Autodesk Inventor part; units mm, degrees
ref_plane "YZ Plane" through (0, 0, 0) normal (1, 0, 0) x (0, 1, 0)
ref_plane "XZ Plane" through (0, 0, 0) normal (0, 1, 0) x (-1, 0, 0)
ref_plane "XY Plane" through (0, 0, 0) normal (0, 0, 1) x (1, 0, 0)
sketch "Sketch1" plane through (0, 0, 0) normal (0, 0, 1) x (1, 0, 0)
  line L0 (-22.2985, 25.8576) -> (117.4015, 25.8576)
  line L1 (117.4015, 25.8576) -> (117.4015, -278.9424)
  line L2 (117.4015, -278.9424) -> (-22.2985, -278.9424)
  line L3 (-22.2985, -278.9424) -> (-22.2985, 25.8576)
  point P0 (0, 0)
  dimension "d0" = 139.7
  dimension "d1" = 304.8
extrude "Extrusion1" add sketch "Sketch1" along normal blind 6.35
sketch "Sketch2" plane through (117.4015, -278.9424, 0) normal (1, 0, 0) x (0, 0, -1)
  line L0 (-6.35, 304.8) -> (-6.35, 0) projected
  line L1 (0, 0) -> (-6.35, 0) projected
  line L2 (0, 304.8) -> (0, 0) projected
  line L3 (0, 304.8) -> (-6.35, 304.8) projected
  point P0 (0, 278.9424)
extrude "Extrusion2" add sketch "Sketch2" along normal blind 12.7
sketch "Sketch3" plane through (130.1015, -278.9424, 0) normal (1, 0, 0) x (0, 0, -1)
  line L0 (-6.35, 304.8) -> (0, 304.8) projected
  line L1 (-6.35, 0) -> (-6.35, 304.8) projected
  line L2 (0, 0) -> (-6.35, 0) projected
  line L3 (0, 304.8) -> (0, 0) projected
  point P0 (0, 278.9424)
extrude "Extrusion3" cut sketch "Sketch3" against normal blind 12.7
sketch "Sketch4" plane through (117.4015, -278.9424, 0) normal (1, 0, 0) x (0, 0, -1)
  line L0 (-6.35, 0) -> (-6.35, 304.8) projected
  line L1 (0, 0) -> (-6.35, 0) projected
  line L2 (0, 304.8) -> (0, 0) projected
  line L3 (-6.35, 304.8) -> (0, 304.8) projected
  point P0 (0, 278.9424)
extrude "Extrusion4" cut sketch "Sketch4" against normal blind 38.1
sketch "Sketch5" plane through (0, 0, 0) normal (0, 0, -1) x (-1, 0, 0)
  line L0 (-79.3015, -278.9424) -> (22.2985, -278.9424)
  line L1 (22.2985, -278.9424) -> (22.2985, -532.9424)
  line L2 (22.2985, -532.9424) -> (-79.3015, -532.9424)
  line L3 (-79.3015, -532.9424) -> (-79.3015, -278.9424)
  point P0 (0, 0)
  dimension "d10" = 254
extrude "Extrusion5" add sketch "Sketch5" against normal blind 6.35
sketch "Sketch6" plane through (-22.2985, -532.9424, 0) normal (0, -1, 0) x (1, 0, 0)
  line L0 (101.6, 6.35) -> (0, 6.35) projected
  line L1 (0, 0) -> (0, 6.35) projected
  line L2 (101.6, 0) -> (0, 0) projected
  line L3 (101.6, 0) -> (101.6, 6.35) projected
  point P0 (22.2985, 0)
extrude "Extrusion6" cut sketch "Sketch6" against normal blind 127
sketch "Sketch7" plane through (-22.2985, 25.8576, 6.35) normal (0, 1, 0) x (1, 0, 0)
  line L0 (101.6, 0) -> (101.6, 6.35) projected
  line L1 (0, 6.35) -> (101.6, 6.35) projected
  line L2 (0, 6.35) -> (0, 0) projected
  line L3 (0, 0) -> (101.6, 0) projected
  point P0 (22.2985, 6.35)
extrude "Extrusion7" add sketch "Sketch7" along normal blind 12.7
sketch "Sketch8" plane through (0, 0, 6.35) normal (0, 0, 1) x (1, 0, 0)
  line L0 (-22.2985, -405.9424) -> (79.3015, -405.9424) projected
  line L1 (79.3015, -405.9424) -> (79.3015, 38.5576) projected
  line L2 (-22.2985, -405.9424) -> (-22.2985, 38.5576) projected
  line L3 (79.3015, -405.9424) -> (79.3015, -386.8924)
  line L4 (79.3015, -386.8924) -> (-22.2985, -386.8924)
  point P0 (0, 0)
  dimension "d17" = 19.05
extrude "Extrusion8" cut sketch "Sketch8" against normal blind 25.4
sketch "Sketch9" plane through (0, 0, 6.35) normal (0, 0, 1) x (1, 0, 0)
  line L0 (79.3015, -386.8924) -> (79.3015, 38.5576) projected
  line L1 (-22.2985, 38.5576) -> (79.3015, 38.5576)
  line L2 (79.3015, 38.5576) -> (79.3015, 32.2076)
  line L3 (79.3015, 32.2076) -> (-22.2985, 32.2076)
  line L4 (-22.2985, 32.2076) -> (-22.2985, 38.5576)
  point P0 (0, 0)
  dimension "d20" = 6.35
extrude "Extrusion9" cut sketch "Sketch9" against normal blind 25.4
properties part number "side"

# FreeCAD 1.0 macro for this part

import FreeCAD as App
import Part
import Sketcher
Q = App.Units.Quantity


def add_polygon(sketch, points):
    """Adds a closed chain of lines whose ends are joined by coincident constraints."""
    first, n = sketch.GeometryCount, len(points)
    for a, b in zip(points, points[1:] + points[:1]):
        sketch.addGeometry(Part.LineSegment(App.Vector(*a, 0), App.Vector(*b, 0)), False)
    for i in range(n):
        sketch.addConstraint(Sketcher.Constraint("Coincident", first + i, 2, first + (i + 1) % n, 1))

doc = App.newDocument("Part")
params = doc.addObject("Spreadsheet::Sheet", "Params")
for row, (alias, value) in enumerate([
    ("sketch1_height", "12 in"),
    ("sketch1_width", "5.5 in"),
    ("pad1_length", "0.25 in"),
    ("sketch2_width", "12 in"),
    ("sketch2_height", "0.25 in"),
    ("pad2_length", "0.5 in"),
    ("sketch3_width", "12 in"),
    ("sketch3_height", "0.25 in"),
    ("pocket1_length", "0.5 in"),
    ("sketch4_width", "12 in"),
    ("sketch4_height", "0.25 in"),
    ("pocket2_length", "1.5 in"),
    ("sketch5_height", "10 in"),
    ("sketch5_width", "4 in"),
    ("pad3_length", "0.25 in"),
    ("sketch6_width", "4 in"),
    ("sketch6_height", "0.25 in"),
    ("pocket3_length", "5 in"),
    ("sketch7_width", "4 in"),
    ("sketch7_height", "0.25 in"),
    ("pad4_length", "0.5 in"),
    ("sketch8_height", "0.75 in"),
    ("sketch8_width", "4 in"),
    ("pocket4_length", "1 in"),
    ("sketch9_height", "0.25 in"),
    ("sketch9_width", "4 in"),
    ("pocket5_length", "1 in"),
], start=1):
    params.set(f"A{row}", alias)
    params.set(f"B{row}", "=" + value)
    params.setAlias(f"B{row}", alias)

body = doc.addObject("PartDesign::Body", "Body")

sketch1 = body.newObject("Sketcher::SketchObject", "Sketch")
sketch1.AttachmentSupport = (doc.getObject("XY_Plane"), [""])
sketch1.MapMode = "FlatFace"
add_polygon(sketch1, [(117, 26), (-22, 26), (-22, -279), (117, -279)])
sketch1.addConstraint([
    Sketcher.Constraint("Horizontal", 0),
    Sketcher.Constraint("Vertical", 1),
    Sketcher.Constraint("Horizontal", 2),
    Sketcher.Constraint("Vertical", 3),
    Sketcher.Constraint("DistanceY", 1, 2, 1, 1, Q("12 in")),
    Sketcher.Constraint("DistanceX", 0, 2, 0, 1, Q("5.5 in")),
    Sketcher.Constraint("DistanceX", 0, 2, -1, 1, Q("0.8779 in")),
    Sketcher.Constraint("DistanceY", -1, 1, 0, 2, Q("25.8576 mm")),
])
sketch1.setExpression("Constraints[8]", "Params.sketch1_height")
sketch1.setExpression("Constraints[9]", "Params.sketch1_width")
pad1 = body.newObject("PartDesign::Pad", "Pad")
pad1.Profile = sketch1
pad1.setExpression("Length", "Params.pad1_length")

sketch2 = body.newObject("Sketcher::SketchObject", "Sketch001")
sketch2.AttachmentSupport = (doc.getObject("YZ_Plane"), [""])
sketch2.MapMode = "FlatFace"
sketch2.AttachmentOffset = App.Placement(App.Vector(0, 0, 4.6221063 * 25.4), App.Rotation())
add_polygon(sketch2, [(26, 0), (26, 6), (-279, 6), (-279, 0)])
sketch2.addConstraint([
    Sketcher.Constraint("Vertical", 0),
    Sketcher.Constraint("Horizontal", 1),
    Sketcher.Constraint("Vertical", 2),
    Sketcher.Constraint("Horizontal", 3),
    Sketcher.Constraint("PointOnObject", 2, 2, -1),
    Sketcher.Constraint("DistanceX", 1, 2, 1, 1, Q("12 in")),
    Sketcher.Constraint("DistanceY", 0, 1, 0, 2, Q("0.25 in")),
    Sketcher.Constraint("DistanceX", -1, 1, 0, 2, Q("25.8576 mm")),
])
sketch2.setExpression("Constraints[9]", "Params.sketch2_width")
sketch2.setExpression("Constraints[10]", "Params.sketch2_height")
pad2 = body.newObject("PartDesign::Pad", "Pad001")
pad2.Profile = sketch2
pad2.setExpression("Length", "Params.pad2_length")

sketch3 = body.newObject("Sketcher::SketchObject", "Sketch002")
sketch3.AttachmentSupport = (doc.getObject("YZ_Plane"), [""])
sketch3.MapMode = "FlatFace"
sketch3.AttachmentOffset = App.Placement(App.Vector(0, 0, 5.1221063 * 25.4), App.Rotation())
add_polygon(sketch3, [(26, 0), (26, 6), (-279, 6), (-279, 0)])
sketch3.addConstraint([
    Sketcher.Constraint("Vertical", 0),
    Sketcher.Constraint("Horizontal", 1),
    Sketcher.Constraint("Vertical", 2),
    Sketcher.Constraint("Horizontal", 3),
    Sketcher.Constraint("PointOnObject", 2, 2, -1),
    Sketcher.Constraint("DistanceX", 1, 2, 1, 1, Q("12 in")),
    Sketcher.Constraint("DistanceY", 0, 1, 0, 2, Q("0.25 in")),
    Sketcher.Constraint("DistanceX", -1, 1, 0, 2, Q("25.8576 mm")),
])
sketch3.setExpression("Constraints[9]", "Params.sketch3_width")
sketch3.setExpression("Constraints[10]", "Params.sketch3_height")
pocket1 = body.newObject("PartDesign::Pocket", "Pocket")
pocket1.Profile = sketch3
pocket1.setExpression("Length", "Params.pocket1_length")

sketch4 = body.newObject("Sketcher::SketchObject", "Sketch003")
sketch4.AttachmentSupport = (doc.getObject("YZ_Plane"), [""])
sketch4.MapMode = "FlatFace"
sketch4.AttachmentOffset = App.Placement(App.Vector(0, 0, 4.6221063 * 25.4), App.Rotation())
add_polygon(sketch4, [(26, 6), (-279, 6), (-279, 0), (26, 0)])
sketch4.addConstraint([
    Sketcher.Constraint("Horizontal", 0),
    Sketcher.Constraint("Vertical", 1),
    Sketcher.Constraint("Horizontal", 2),
    Sketcher.Constraint("Vertical", 3),
    Sketcher.Constraint("PointOnObject", 1, 2, -1),
    Sketcher.Constraint("DistanceX", 0, 2, 0, 1, Q("12 in")),
    Sketcher.Constraint("DistanceY", 1, 2, 1, 1, Q("0.25 in")),
    Sketcher.Constraint("DistanceX", 0, 2, -1, 1, Q("278.9424 mm")),
])
sketch4.setExpression("Constraints[9]", "Params.sketch4_width")
sketch4.setExpression("Constraints[10]", "Params.sketch4_height")
pocket2 = body.newObject("PartDesign::Pocket", "Pocket001")
pocket2.Profile = sketch4
pocket2.setExpression("Length", "Params.pocket2_length")

sketch5 = body.newObject("Sketcher::SketchObject", "Sketch004")
sketch5.AttachmentSupport = (doc.getObject("XY_Plane"), [""])
sketch5.MapMode = "FlatFace"
add_polygon(sketch5, [(-22, -279), (79, -279), (79, -533), (-22, -533)])
sketch5.addConstraint([
    Sketcher.Constraint("Horizontal", 0),
    Sketcher.Constraint("Vertical", 1),
    Sketcher.Constraint("Horizontal", 2),
    Sketcher.Constraint("Vertical", 3),
    Sketcher.Constraint("DistanceY", 1, 2, 1, 1, Q("10 in")),
    Sketcher.Constraint("DistanceX", 0, 1, 0, 2, Q("4 in")),
    Sketcher.Constraint("DistanceX", -1, 1, 0, 2, Q("3.1221 in")),
    Sketcher.Constraint("DistanceY", 0, 2, -1, 1, Q("278.9424 mm")),
])
sketch5.setExpression("Constraints[8]", "Params.sketch5_height")
sketch5.setExpression("Constraints[9]", "Params.sketch5_width")
pad3 = body.newObject("PartDesign::Pad", "Pad002")
pad3.Profile = sketch5
pad3.setExpression("Length", "Params.pad3_length")

sketch6 = body.newObject("Sketcher::SketchObject", "Sketch005")
sketch6.AttachmentSupport = (doc.getObject("XZ_Plane"), [""])
sketch6.MapMode = "FlatFace"
sketch6.AttachmentOffset = App.Placement(App.Vector(0, 0, 532.9424), App.Rotation())
add_polygon(sketch6, [(79, 0), (79, 6), (-22, 6), (-22, 0)])
sketch6.addConstraint([
    Sketcher.Constraint("Vertical", 0),
    Sketcher.Constraint("Horizontal", 1),
    Sketcher.Constraint("Vertical", 2),
    Sketcher.Constraint("Horizontal", 3),
    Sketcher.Constraint("PointOnObject", 2, 2, -1),
    Sketcher.Constraint("DistanceX", 1, 2, 1, 1, Q("4 in")),
    Sketcher.Constraint("DistanceY", 0, 1, 0, 2, Q("0.25 in")),
    Sketcher.Constraint("DistanceX", -1, 1, 0, 2, Q("3.1221 in")),
])
sketch6.setExpression("Constraints[9]", "Params.sketch6_width")
sketch6.setExpression("Constraints[10]", "Params.sketch6_height")
pocket3 = body.newObject("PartDesign::Pocket", "Pocket002")
pocket3.Profile = sketch6
pocket3.setExpression("Length", "Params.pocket3_length")

sketch7 = body.newObject("Sketcher::SketchObject", "Sketch006")
sketch7.AttachmentSupport = (doc.getObject("XZ_Plane"), [""])
sketch7.MapMode = "FlatFace"
sketch7.AttachmentOffset = App.Placement(App.Vector(0, 0, -25.8576), App.Rotation())
add_polygon(sketch7, [(-22, 6), (79, 6), (79, 0), (-22, 0)])
sketch7.addConstraint([
    Sketcher.Constraint("Horizontal", 0),
    Sketcher.Constraint("Vertical", 1),
    Sketcher.Constraint("Horizontal", 2),
    Sketcher.Constraint("Vertical", 3),
    Sketcher.Constraint("PointOnObject", 1, 2, -1),
    Sketcher.Constraint("DistanceX", 0, 1, 0, 2, Q("4 in")),
    Sketcher.Constraint("DistanceY", 1, 2, 1, 1, Q("0.25 in")),
    Sketcher.Constraint("DistanceX", -1, 1, 0, 2, Q("3.1221 in")),
])
sketch7.setExpression("Constraints[9]", "Params.sketch7_width")
sketch7.setExpression("Constraints[10]", "Params.sketch7_height")
pad4 = body.newObject("PartDesign::Pad", "Pad003")
pad4.Profile = sketch7
pad4.setExpression("Length", "Params.pad4_length")
pad4.Reversed = True

sketch8 = body.newObject("Sketcher::SketchObject", "Sketch007")
sketch8.AttachmentSupport = (doc.getObject("XY_Plane"), [""])
sketch8.MapMode = "FlatFace"
sketch8.AttachmentOffset = App.Placement(App.Vector(0, 0, 0.25 * 25.4), App.Rotation())
add_polygon(sketch8, [(-22, -387), (-22, -406), (79, -406), (79, -387)])
sketch8.addConstraint([
    Sketcher.Constraint("Vertical", 0),
    Sketcher.Constraint("Horizontal", 1),
    Sketcher.Constraint("Vertical", 2),
    Sketcher.Constraint("Horizontal", 3),
    Sketcher.Constraint("DistanceY", 0, 2, 0, 1, Q("0.75 in")),
    Sketcher.Constraint("DistanceX", 1, 1, 1, 2, Q("4 in")),
    Sketcher.Constraint("DistanceX", 0, 2, -1, 1, Q("0.8779 in")),
    Sketcher.Constraint("DistanceY", 0, 2, -1, 1, Q("405.9424 mm")),
])
sketch8.setExpression("Constraints[8]", "Params.sketch8_height")
sketch8.setExpression("Constraints[9]", "Params.sketch8_width")
pocket4 = body.newObject("PartDesign::Pocket", "Pocket003")
pocket4.Profile = sketch8
pocket4.setExpression("Length", "Params.pocket4_length")

sketch9 = body.newObject("Sketcher::SketchObject", "Sketch008")
sketch9.AttachmentSupport = (doc.getObject("XY_Plane"), [""])
sketch9.MapMode = "FlatFace"
sketch9.AttachmentOffset = App.Placement(App.Vector(0, 0, 0.25 * 25.4), App.Rotation())
add_polygon(sketch9, [(-22, 32), (79, 32), (79, 39), (-22, 39)])
sketch9.addConstraint([
    Sketcher.Constraint("Horizontal", 0),
    Sketcher.Constraint("Vertical", 1),
    Sketcher.Constraint("Horizontal", 2),
    Sketcher.Constraint("Vertical", 3),
    Sketcher.Constraint("DistanceY", 1, 1, 1, 2, Q("0.25 in")),
    Sketcher.Constraint("DistanceX", 0, 1, 0, 2, Q("4 in")),
    Sketcher.Constraint("DistanceX", -1, 1, 0, 2, Q("3.1221 in")),
    Sketcher.Constraint("DistanceY", -1, 1, 0, 2, Q("32.2076 mm")),
])
sketch9.setExpression("Constraints[8]", "Params.sketch9_height")
sketch9.setExpression("Constraints[9]", "Params.sketch9_width")
pocket5 = body.newObject("PartDesign::Pocket", "Pocket004")
pocket5.Profile = sketch9
pocket5.setExpression("Length", "Params.pocket5_length")

doc.recompute()
